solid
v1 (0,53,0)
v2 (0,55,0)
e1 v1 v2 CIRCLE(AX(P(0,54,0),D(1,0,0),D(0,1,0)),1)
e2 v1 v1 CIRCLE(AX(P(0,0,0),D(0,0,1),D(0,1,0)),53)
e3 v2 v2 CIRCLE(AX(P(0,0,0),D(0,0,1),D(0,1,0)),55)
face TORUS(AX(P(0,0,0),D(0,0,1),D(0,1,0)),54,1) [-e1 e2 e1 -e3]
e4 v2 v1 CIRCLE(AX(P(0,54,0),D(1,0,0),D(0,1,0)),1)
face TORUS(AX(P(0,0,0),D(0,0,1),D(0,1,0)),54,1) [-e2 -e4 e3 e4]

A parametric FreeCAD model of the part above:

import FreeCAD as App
import Part
import Sketcher

V = App.Vector

doc = App.newDocument("Part")
params = doc.addObject("Spreadsheet::Sheet", "Params")
for row, (alias, value) in enumerate([
    ("sketch1_diameter", "2 mm"),
    ("revolution_angle", "360 deg"),
], start=1):
    params.set(f"A{row}", alias)
    params.set(f"B{row}", "=" + value)
    params.setAlias(f"B{row}", alias)

body = doc.addObject("PartDesign::Body", "Body")

# Sketch on YZ plane
sketch1 = doc.addObject("Sketcher::SketchObject", "Sketch")
body.addObject(sketch1)
sketch1.AttachmentSupport = (doc.YZ_Plane, [""])
sketch1.MapMode = "FlatFace"
sketch1.addGeometry(Part.Circle(V(54, 0, 0), V(0, 0, 1), 1), False)
sketch1.addConstraint([
    Sketcher.Constraint("PointOnObject", 0, 3, -1),
    Sketcher.Constraint("Diameter", 0, 2.0),
    Sketcher.Constraint("DistanceX", -1, 1, 0, 3, 54.0),
])
sketch1.setExpression("Constraints[1]", "Params.sketch1_diameter")
revolution = doc.addObject("PartDesign::Revolution", "Revolution")
body.addObject(revolution)
revolution.Profile = sketch1
revolution.ReferenceAxis = (sketch1, ["V_Axis"])
revolution.setExpression("Angle", "Params.revolution_angle")

doc.recompute()
